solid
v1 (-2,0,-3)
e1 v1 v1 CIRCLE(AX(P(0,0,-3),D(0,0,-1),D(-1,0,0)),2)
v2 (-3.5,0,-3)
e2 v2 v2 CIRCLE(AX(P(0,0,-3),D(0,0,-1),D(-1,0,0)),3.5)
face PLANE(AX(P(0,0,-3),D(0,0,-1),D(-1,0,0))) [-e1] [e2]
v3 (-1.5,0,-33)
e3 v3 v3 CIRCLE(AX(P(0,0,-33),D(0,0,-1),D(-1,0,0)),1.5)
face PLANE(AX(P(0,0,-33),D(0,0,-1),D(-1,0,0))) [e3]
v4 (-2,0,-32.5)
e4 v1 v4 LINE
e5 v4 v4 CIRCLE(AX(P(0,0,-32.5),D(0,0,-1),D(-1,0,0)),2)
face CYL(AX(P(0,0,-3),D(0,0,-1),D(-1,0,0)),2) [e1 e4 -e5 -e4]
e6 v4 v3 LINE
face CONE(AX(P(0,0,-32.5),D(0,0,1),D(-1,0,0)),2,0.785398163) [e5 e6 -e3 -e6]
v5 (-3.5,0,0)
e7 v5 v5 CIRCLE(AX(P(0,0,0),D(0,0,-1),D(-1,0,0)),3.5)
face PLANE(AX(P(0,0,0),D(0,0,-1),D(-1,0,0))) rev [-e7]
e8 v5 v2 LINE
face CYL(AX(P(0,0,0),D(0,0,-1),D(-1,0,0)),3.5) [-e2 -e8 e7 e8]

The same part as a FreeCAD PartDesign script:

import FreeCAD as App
import Part
import Sketcher

V = App.Vector
Q = App.Units.Quantity


def edges_at(feature, points):
    """Names of the edges that pass closest to the given points."""
    edges = feature.Shape.Edges
    near = lambda p: min(range(len(edges)), key=lambda i: edges[i].distToShape(Part.Vertex(*p))[0])
    return sorted({f"Edge{near(p) + 1}" for p in points})

doc = App.newDocument("Part")
body = doc.addObject("PartDesign::Body", "Body")

# Sketch on XZ plane
sketch1 = body.newObject("Sketcher::SketchObject", "Sketch")
sketch1.AttachmentSupport = (doc.getObject("XZ_Plane"), [""])
sketch1.MapMode = "FlatFace"
sketch1.addGeometry(Part.LineSegment(V(-3.5, 0, 0), V(0, 0, 0)), False)
sketch1.addGeometry(Part.LineSegment(V(0, 0, 0), V(0, -33, 0)), False)
sketch1.addGeometry(Part.LineSegment(V(0, -33, 0), V(-2, -33, 0)), False)
sketch1.addGeometry(Part.LineSegment(V(-2, -33, 0), V(-2, -3, 0)), False)
sketch1.addGeometry(Part.LineSegment(V(-2, -3, 0), V(-3.5, -3, 0)), False)
sketch1.addGeometry(Part.LineSegment(V(-3.5, -3, 0), V(-3.5, 0, 0)), False)
sketch1.addConstraint(Sketcher.Constraint("Coincident", 0, 2, 1, 1))
sketch1.addConstraint(Sketcher.Constraint("Coincident", 1, 2, 2, 1))
sketch1.addConstraint(Sketcher.Constraint("Coincident", 2, 2, 3, 1))
sketch1.addConstraint(Sketcher.Constraint("Coincident", 3, 2, 4, 1))
sketch1.addConstraint(Sketcher.Constraint("Coincident", 4, 2, 5, 1))
sketch1.addConstraint(Sketcher.Constraint("Coincident", 5, 2, 0, 1))
sketch1.addConstraint(Sketcher.Constraint("Horizontal", 0))
sketch1.addConstraint(Sketcher.Constraint("Vertical", 1))
sketch1.addConstraint(Sketcher.Constraint("Horizontal", 2))
sketch1.addConstraint(Sketcher.Constraint("Vertical", 3))
sketch1.addConstraint(Sketcher.Constraint("Horizontal", 4))
sketch1.addConstraint(Sketcher.Constraint("Vertical", 5))
sketch1.addConstraint(Sketcher.Constraint("Coincident", 0, 2, -1, 1))
sketch1.addConstraint(Sketcher.Constraint("DistanceX", 2, 2, 2, 1, Q("2 mm")))
sketch1.addConstraint(Sketcher.Constraint("DistanceY", 3, 1, 3, 2, Q("30 mm")))
sketch1.addConstraint(Sketcher.Constraint("DistanceY", 5, 1, 5, 2, Q("3 mm")))
sketch1.addConstraint(Sketcher.Constraint("DistanceX", 0, 1, 0, 2, Q("3.5 mm")))
revolution = body.newObject("PartDesign::Revolution", "Revolution")
revolution.Profile = sketch1
revolution.ReferenceAxis = (sketch1, ["V_Axis"])
revolution.Angle = 360
doc.recompute()

chamfer = body.newObject("PartDesign::Chamfer", "Chamfer")
chamfer.Base = (revolution, edges_at(revolution, [(2, 0, -33)]))
chamfer.Size = 0.5

doc.recompute()
